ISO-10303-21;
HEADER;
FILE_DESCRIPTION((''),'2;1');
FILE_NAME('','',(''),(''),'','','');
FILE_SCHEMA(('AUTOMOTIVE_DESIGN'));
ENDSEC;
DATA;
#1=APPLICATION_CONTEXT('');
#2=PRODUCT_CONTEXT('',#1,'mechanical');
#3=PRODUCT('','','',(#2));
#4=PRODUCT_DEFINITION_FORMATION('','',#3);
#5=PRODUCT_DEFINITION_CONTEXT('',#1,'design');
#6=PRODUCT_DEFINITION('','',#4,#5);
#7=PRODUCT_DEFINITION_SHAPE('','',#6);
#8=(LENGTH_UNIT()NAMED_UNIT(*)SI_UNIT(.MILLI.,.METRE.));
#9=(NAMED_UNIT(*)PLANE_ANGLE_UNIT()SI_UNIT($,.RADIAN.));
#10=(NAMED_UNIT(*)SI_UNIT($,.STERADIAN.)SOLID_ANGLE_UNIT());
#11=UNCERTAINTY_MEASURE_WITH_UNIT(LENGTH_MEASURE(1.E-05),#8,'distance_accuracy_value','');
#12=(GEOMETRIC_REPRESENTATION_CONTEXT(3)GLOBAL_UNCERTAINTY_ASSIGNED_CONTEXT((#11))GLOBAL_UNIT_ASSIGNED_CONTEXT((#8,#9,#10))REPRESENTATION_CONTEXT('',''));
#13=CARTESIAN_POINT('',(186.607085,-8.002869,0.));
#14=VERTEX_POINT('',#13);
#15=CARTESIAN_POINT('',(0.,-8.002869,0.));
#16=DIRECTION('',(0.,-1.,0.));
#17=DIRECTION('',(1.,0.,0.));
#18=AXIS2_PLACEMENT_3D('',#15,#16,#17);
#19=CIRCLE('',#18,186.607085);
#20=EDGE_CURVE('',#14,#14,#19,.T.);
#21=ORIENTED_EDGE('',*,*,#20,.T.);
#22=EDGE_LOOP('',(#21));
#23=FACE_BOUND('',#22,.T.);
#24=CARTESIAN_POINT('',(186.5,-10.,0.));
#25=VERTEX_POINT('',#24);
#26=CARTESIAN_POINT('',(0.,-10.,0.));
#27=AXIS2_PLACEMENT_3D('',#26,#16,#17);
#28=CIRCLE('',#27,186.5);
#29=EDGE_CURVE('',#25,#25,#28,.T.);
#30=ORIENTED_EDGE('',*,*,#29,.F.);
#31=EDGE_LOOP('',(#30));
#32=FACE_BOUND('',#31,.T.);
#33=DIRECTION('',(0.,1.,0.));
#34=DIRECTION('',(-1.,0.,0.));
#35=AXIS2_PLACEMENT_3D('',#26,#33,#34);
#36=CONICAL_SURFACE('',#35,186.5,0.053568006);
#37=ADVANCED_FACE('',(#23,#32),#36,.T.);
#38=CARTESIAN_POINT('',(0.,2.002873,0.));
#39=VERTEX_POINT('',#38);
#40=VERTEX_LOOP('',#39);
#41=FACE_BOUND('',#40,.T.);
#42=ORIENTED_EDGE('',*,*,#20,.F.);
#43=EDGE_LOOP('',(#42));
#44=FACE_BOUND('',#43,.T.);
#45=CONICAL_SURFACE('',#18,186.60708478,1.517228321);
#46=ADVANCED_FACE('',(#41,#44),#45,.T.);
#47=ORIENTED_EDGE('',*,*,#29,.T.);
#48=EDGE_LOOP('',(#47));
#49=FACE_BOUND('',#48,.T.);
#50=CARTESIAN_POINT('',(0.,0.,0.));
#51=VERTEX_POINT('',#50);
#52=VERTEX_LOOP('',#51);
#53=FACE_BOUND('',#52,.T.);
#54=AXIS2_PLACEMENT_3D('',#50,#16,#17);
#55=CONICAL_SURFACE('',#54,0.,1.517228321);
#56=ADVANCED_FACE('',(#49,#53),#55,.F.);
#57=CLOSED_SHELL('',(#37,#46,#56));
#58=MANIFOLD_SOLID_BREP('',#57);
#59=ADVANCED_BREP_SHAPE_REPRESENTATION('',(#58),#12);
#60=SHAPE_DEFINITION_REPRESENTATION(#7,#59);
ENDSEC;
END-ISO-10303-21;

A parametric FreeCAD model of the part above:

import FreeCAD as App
import Part
import Sketcher
from FreeCAD import Vector


def add_polygon(sketch, points):
    """Adds a closed chain of lines whose ends are joined by coincident constraints."""
    first, n = sketch.GeometryCount, len(points)
    for a, b in zip(points, points[1:] + points[:1]):
        sketch.addGeometry(Part.LineSegment(App.Vector(*a, 0), App.Vector(*b, 0)), False)
    for i in range(n):
        sketch.addConstraint(Sketcher.Constraint("Coincident", first + i, 2, first + (i + 1) % n, 1))

doc = App.newDocument("Part")
body = doc.addObject("PartDesign::Body", "Body")

# Sketch on XY plane
sketch1 = body.newObject("Sketcher::SketchObject", "Sketch")
sketch1.AttachmentSupport = (doc.getObject("XY_Plane"), [""])
sketch1.MapMode = "FlatFace"
add_polygon(sketch1, [(0, 2), (0, 0), (186.5, -10), (186.6, -8)])  # lines 0-3
sketch1.addConstraint([
    Sketcher.Constraint("Vertical", 0),
    Sketcher.Constraint("Coincident", 0, 2, -1, 1),
    Sketcher.Constraint("Perpendicular", 1, 2),
    Sketcher.Constraint("Perpendicular", 2, 3),
    Sketcher.Constraint("Distance", 2, 2.0),
    Sketcher.Constraint("DistanceY", 1, 2, -1, 1, 10.0),
    Sketcher.Constraint("DistanceX", -1, 1, 1, 2, 186.5),
])
revolution = body.newObject("PartDesign::Revolution", "Revolution")
revolution.Profile = sketch1
revolution.ReferenceAxis = (sketch1, ["V_Axis"])
revolution.Angle = 360

doc.recompute()
